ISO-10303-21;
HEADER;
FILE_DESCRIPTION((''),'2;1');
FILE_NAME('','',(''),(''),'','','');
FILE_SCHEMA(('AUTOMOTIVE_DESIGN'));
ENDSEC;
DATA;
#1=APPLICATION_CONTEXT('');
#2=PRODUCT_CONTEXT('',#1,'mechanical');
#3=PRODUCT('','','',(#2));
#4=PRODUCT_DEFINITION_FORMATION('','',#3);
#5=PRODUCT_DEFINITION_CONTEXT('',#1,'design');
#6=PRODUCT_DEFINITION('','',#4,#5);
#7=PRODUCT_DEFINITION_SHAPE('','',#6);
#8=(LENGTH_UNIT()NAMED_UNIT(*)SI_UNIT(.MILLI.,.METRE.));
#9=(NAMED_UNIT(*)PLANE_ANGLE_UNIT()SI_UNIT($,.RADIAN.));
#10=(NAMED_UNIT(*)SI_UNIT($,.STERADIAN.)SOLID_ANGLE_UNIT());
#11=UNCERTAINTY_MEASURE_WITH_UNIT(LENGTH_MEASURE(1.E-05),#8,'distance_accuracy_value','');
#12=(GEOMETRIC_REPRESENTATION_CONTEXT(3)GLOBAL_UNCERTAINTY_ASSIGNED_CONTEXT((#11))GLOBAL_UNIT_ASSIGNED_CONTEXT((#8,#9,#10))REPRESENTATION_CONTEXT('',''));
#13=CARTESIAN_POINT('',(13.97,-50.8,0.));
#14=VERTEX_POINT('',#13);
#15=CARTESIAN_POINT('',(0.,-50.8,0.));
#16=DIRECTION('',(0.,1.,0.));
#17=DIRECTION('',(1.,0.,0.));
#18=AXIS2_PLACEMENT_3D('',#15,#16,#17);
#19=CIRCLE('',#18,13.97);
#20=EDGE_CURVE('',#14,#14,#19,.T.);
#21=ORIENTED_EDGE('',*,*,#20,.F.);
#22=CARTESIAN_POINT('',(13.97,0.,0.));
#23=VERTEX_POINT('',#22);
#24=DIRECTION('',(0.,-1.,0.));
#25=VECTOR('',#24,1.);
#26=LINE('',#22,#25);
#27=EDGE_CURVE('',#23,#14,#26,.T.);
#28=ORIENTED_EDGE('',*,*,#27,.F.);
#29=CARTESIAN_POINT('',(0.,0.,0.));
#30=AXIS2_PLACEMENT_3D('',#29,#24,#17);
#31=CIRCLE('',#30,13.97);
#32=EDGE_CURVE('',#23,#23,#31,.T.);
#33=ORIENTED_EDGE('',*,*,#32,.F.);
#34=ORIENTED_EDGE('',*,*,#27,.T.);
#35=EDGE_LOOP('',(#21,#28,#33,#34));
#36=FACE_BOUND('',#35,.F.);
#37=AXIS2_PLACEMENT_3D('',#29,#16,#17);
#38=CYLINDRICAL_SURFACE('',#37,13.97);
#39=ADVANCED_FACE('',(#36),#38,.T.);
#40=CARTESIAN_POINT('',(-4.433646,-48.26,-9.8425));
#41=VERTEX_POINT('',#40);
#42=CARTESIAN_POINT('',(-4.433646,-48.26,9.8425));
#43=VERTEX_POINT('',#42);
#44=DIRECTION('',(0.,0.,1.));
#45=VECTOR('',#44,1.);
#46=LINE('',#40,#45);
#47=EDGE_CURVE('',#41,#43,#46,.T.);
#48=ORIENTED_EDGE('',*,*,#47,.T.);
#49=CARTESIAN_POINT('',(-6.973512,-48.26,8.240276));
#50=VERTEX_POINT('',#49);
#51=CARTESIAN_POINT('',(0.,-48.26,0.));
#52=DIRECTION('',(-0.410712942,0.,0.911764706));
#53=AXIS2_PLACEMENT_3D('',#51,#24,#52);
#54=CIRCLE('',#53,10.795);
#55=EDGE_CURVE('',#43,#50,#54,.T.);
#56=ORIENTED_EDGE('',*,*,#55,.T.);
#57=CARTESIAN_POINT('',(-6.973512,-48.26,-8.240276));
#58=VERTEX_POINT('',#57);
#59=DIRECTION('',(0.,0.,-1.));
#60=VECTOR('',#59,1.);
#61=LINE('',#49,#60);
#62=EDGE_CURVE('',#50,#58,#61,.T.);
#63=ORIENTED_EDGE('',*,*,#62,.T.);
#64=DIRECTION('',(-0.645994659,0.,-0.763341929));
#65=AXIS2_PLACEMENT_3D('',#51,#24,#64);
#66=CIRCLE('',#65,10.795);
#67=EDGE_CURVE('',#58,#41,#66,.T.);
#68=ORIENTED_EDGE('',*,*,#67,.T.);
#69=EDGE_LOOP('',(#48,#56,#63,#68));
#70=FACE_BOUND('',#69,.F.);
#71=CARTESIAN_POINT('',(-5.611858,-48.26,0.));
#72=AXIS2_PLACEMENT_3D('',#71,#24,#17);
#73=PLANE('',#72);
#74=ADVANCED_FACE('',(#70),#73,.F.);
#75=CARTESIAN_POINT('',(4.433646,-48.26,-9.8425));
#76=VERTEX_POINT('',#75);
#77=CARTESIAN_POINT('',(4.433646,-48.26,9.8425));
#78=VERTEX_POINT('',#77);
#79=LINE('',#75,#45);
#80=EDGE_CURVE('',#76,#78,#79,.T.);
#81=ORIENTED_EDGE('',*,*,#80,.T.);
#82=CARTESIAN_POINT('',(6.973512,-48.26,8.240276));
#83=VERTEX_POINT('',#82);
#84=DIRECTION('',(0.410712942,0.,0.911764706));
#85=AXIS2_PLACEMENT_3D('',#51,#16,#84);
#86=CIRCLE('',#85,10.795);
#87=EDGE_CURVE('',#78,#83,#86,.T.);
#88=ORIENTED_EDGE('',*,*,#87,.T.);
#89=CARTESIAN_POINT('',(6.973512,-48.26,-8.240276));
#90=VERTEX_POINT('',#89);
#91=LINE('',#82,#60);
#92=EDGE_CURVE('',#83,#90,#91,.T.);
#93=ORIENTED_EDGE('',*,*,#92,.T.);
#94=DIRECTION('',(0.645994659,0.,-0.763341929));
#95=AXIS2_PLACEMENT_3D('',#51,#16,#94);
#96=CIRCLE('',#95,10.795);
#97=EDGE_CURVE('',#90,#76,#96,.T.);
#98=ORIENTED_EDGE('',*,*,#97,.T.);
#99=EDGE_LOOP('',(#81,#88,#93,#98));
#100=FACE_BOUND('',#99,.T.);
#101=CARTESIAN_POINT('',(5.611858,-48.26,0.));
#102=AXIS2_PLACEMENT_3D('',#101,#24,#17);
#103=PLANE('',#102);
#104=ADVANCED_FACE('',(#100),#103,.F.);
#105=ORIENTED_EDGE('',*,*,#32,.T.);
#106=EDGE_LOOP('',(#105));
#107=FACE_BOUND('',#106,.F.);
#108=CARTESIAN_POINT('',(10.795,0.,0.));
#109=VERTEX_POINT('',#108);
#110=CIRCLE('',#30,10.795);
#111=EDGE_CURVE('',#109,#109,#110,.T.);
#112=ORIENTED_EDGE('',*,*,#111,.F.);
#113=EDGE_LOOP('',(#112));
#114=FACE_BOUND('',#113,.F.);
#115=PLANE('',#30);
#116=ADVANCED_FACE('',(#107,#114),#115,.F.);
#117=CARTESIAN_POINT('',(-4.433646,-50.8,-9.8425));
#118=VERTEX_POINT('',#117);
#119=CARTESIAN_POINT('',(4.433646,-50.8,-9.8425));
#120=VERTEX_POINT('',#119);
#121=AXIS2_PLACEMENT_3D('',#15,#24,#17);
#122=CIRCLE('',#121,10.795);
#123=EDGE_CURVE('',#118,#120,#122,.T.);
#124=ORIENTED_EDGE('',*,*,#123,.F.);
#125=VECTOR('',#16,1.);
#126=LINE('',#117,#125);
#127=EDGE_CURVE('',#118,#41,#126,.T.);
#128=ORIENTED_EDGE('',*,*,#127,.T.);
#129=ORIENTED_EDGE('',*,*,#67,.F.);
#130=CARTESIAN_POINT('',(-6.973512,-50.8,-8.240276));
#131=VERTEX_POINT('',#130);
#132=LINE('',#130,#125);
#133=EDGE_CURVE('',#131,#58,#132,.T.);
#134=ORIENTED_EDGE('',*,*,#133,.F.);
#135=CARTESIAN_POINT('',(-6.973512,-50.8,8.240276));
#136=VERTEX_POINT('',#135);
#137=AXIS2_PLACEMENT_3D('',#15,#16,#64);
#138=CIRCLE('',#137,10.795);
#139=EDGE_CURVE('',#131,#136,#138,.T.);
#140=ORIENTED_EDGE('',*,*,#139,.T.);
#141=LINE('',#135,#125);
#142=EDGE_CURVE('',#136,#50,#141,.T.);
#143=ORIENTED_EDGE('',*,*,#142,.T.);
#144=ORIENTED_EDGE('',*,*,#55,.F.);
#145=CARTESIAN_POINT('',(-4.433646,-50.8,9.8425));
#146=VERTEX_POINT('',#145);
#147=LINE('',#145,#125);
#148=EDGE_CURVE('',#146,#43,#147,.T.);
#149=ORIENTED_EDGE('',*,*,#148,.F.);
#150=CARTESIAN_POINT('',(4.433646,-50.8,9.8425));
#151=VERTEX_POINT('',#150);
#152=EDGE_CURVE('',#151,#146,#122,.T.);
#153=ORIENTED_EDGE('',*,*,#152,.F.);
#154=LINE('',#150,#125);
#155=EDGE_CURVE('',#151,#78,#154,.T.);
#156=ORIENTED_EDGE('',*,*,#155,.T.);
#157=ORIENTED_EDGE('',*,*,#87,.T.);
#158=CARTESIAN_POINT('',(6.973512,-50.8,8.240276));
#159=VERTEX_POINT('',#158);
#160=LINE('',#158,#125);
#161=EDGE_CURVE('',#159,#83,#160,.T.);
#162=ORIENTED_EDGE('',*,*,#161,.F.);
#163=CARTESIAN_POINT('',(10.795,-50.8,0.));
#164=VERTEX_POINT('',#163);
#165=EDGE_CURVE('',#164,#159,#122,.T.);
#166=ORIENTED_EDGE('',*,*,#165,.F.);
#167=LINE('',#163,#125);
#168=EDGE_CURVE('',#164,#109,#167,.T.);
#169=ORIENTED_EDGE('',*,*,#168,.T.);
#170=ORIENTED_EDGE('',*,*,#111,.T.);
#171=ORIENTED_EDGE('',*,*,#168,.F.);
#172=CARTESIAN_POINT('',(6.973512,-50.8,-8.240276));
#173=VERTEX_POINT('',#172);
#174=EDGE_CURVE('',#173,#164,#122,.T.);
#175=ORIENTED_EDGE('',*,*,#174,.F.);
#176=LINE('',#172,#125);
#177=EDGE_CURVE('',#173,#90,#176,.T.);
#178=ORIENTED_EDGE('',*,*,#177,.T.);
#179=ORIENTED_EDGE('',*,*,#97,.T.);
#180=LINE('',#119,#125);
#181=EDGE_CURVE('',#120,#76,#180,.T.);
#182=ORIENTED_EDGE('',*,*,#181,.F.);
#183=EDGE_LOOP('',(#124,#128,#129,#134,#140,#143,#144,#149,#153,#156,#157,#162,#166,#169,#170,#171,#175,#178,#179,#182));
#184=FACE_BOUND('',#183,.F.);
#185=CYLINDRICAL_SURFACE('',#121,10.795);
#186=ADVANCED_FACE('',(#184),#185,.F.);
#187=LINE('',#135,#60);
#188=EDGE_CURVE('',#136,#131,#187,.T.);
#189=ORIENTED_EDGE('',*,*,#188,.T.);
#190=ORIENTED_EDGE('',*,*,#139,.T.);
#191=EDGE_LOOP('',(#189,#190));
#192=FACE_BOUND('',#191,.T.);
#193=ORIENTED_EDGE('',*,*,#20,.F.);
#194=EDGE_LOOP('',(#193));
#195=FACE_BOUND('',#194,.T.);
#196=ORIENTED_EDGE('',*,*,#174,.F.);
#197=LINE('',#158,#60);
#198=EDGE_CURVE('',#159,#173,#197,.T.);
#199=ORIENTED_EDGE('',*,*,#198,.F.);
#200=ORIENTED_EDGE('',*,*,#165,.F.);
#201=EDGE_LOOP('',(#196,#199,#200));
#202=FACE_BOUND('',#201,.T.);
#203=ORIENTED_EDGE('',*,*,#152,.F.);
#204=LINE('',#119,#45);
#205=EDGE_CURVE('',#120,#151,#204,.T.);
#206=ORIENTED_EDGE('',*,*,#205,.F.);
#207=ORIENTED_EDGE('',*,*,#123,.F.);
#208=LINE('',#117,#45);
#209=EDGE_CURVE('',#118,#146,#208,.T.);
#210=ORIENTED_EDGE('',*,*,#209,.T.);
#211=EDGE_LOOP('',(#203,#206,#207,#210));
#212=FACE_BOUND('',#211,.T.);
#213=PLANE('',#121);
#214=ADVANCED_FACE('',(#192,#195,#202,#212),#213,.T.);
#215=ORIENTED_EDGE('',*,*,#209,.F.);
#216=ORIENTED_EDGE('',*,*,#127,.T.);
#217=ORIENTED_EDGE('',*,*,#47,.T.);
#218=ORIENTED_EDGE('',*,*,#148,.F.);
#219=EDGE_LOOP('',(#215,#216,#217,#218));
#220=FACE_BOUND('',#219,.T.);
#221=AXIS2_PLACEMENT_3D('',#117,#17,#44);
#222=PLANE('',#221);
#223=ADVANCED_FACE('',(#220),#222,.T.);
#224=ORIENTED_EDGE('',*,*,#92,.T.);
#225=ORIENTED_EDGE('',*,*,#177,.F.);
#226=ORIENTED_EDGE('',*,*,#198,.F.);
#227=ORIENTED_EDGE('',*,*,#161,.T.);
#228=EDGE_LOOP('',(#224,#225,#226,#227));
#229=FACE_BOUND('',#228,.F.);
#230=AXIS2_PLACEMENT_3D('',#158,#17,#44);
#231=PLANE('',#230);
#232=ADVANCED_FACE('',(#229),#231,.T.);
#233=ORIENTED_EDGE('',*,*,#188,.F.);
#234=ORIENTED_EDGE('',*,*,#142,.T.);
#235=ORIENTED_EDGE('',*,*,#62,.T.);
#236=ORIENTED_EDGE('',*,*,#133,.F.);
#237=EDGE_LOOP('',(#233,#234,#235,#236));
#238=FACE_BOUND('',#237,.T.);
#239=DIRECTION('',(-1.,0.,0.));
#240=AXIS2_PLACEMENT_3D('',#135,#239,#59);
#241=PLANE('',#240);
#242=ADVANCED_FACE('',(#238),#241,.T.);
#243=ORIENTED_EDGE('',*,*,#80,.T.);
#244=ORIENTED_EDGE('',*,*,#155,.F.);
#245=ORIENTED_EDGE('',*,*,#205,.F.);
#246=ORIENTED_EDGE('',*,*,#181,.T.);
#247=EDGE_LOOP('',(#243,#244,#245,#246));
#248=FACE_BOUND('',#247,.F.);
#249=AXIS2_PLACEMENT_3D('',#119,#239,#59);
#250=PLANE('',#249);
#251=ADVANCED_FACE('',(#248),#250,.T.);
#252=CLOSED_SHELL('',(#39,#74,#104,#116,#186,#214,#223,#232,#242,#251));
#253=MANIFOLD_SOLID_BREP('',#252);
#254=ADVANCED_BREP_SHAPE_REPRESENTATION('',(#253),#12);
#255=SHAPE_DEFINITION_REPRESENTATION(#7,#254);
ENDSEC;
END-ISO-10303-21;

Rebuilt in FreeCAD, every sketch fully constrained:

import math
import FreeCAD as App
import Part
import Sketcher

V = App.Vector
Q = App.Units.Quantity

doc = App.newDocument("Part")
body = doc.addObject("PartDesign::Body", "Body")

# Sketch on XZ plane
sketch1 = body.newObject("Sketcher::SketchObject", "Sketch")
sketch1.AttachmentSupport = (doc.getObject("XZ_Plane"), [""])
sketch1.MapMode = "FlatFace"
sketch1.addGeometry(Part.Circle(V(0, 0, 0), V(0, 0, 1), 14), False)
sketch1.addConstraint([
    Sketcher.Constraint("Coincident", 0, 3, -1, 1),
    Sketcher.Constraint("Diameter", 0, Q("1.1 in")),
])
pad1 = body.newObject("PartDesign::Pad", "Pad")
pad1.Profile = sketch1
pad1.Length = Q("2 in")

# Sketch on XZ plane
sketch2 = body.newObject("Sketcher::SketchObject", "Sketch001")
sketch2.AttachmentSupport = (doc.getObject("XZ_Plane"), [""])
sketch2.MapMode = "FlatFace"
sketch2.AttachmentOffset = App.Placement(V(0, 0, 2 * 25.4), App.Rotation())
sketch2.addGeometry(Part.Circle(V(0, 0, 0), V(0, 0, 1), 11), False)
sketch2.addConstraint([
    Sketcher.Constraint("Coincident", 0, 3, -1, 1),
    Sketcher.Constraint("Diameter", 0, Q("0.85 in")),
])
pocket1 = body.newObject("PartDesign::Pocket", "Pocket")
pocket1.Profile = sketch2
pocket1.Length = Q("2 in")

# Sketch on XZ plane
sketch3 = body.newObject("Sketcher::SketchObject", "Sketch002")
sketch3.AttachmentSupport = (doc.getObject("XZ_Plane"), [""])
sketch3.MapMode = "FlatFace"
sketch3.AttachmentOffset = App.Placement(V(0, 0, 2 * 25.4), App.Rotation())
sketch3.addGeometry([
    Part.ArcOfCircle(Part.Circle(V(0, 0, 0), V(0, 0, 1), 10.8), math.radians(-130.24), math.radians(-114.25)),
    Part.LineSegment(V(-4.4, -9.8, 0), V(-4.4, 9.8, 0)),
    Part.ArcOfCircle(Part.Circle(V(0, 0, 0), V(0, 0, 1), 10.8), math.radians(114.25), math.radians(130.24)),
    Part.LineSegment(V(-7, 8.2, 0), V(-7, -8.2, 0)),
], False)
sketch3.addConstraint([
    Sketcher.Constraint("Coincident", 0, 2, 1, 1),
    Sketcher.Constraint("Coincident", 1, 2, 2, 1),
    Sketcher.Constraint("Coincident", 2, 2, 3, 1),
    Sketcher.Constraint("Coincident", 3, 2, 0, 1),
    Sketcher.Constraint("Vertical", 1),
    Sketcher.Constraint("Vertical", 3),
    Sketcher.Constraint("Coincident", 0, 3, -1, 1),
    Sketcher.Constraint("Coincident", 2, 3, -1, 1),
    Sketcher.Constraint("Equal", 0, 2),
    Sketcher.Constraint("Radius", 0, Q("0.425 in")),
    Sketcher.Constraint("DistanceY", 1, 1, 1, 2, Q("0.775 in")),
    Sketcher.Constraint("DistanceY", 3, 2, 3, 1, 16.480552),
])
pad2 = body.newObject("PartDesign::Pad", "Pad001")
pad2.Profile = sketch3
pad2.Length = Q("0.1 in")
pad2.Reversed = True
body2 = doc.addObject("PartDesign::Body", "Body001")
doc.recompute()

body2.BaseFeature = body
doc.recompute()

mirroring = doc.addObject("Part::Mirroring", "Mirroring")
mirroring.Source = body
mirroring.Base = V(0, 0, 0)
mirroring.Normal = V(1, 0, 0)
body3 = doc.addObject("PartDesign::Body", "Body002")
body3.BaseFeature = mirroring
boolean = body2.newObject("PartDesign::Boolean", "Boolean")
boolean.Type = "Fuse"
boolean.addObjects([body3])
doc.recompute()
mirroring.Visibility = False

doc.recompute()
